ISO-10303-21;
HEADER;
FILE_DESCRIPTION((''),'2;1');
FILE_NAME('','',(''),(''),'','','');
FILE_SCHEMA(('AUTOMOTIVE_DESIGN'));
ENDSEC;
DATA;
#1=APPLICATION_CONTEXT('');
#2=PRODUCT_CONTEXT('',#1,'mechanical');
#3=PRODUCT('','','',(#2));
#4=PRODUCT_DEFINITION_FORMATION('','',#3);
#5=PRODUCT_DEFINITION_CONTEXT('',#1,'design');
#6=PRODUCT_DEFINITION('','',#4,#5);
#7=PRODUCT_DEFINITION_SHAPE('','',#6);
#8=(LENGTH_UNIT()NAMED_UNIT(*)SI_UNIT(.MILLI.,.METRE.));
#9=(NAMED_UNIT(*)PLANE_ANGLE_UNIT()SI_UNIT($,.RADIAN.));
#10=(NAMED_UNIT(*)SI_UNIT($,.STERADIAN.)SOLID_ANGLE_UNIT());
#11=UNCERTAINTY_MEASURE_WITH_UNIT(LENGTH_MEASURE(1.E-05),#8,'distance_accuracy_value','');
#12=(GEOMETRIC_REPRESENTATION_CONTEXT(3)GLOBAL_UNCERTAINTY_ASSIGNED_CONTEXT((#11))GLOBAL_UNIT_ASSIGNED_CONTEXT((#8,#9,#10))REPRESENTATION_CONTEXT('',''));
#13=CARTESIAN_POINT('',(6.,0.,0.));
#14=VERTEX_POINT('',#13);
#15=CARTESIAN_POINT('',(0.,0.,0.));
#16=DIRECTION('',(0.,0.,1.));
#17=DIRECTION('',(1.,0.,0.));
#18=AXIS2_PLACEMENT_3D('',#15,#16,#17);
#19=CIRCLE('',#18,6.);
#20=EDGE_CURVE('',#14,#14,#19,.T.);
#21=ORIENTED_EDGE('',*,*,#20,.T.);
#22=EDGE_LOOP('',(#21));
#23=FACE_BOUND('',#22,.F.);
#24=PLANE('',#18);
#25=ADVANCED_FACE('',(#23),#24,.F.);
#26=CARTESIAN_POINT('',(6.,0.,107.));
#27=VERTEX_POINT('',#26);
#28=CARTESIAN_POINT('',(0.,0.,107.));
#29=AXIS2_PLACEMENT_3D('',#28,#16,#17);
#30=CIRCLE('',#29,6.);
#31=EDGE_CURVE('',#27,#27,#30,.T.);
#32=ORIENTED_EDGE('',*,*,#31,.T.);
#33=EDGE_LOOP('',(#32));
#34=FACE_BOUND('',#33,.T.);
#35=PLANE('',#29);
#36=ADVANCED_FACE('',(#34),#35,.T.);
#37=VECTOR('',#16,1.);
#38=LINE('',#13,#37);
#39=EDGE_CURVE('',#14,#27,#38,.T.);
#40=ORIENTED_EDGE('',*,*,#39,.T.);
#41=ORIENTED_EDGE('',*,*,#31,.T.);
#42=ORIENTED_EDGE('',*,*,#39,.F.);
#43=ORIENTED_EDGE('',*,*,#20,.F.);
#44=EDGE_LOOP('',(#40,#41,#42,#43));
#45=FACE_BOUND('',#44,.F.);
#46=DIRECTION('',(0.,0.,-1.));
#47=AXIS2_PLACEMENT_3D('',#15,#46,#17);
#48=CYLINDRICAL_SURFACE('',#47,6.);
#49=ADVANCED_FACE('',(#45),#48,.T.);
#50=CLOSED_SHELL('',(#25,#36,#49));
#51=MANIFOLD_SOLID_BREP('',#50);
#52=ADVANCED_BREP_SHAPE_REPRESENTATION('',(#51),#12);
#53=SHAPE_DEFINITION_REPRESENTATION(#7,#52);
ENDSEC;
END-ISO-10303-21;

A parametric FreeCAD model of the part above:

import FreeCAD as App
import Part
import Sketcher

V = App.Vector

doc = App.newDocument("Part")
body = doc.addObject("PartDesign::Body", "Body")

# Sketch on XY plane
sketch1 = body.newObject("Sketcher::SketchObject", "Sketch")
sketch1.AttachmentSupport = (doc.getObject("XY_Plane"), [""])
sketch1.MapMode = "FlatFace"
sketch1.addGeometry(Part.Circle(V(0, 0, 0), V(0, 0, 1), 6), False)
sketch1.addConstraint(Sketcher.Constraint("Coincident", 0, 3, -1, 1))
sketch1.addConstraint(Sketcher.Constraint("Diameter", 0, 12.0))
pad1 = body.newObject("PartDesign::Pad", "Pad")
pad1.Profile = sketch1
pad1.Length = 107

doc.recompute()
